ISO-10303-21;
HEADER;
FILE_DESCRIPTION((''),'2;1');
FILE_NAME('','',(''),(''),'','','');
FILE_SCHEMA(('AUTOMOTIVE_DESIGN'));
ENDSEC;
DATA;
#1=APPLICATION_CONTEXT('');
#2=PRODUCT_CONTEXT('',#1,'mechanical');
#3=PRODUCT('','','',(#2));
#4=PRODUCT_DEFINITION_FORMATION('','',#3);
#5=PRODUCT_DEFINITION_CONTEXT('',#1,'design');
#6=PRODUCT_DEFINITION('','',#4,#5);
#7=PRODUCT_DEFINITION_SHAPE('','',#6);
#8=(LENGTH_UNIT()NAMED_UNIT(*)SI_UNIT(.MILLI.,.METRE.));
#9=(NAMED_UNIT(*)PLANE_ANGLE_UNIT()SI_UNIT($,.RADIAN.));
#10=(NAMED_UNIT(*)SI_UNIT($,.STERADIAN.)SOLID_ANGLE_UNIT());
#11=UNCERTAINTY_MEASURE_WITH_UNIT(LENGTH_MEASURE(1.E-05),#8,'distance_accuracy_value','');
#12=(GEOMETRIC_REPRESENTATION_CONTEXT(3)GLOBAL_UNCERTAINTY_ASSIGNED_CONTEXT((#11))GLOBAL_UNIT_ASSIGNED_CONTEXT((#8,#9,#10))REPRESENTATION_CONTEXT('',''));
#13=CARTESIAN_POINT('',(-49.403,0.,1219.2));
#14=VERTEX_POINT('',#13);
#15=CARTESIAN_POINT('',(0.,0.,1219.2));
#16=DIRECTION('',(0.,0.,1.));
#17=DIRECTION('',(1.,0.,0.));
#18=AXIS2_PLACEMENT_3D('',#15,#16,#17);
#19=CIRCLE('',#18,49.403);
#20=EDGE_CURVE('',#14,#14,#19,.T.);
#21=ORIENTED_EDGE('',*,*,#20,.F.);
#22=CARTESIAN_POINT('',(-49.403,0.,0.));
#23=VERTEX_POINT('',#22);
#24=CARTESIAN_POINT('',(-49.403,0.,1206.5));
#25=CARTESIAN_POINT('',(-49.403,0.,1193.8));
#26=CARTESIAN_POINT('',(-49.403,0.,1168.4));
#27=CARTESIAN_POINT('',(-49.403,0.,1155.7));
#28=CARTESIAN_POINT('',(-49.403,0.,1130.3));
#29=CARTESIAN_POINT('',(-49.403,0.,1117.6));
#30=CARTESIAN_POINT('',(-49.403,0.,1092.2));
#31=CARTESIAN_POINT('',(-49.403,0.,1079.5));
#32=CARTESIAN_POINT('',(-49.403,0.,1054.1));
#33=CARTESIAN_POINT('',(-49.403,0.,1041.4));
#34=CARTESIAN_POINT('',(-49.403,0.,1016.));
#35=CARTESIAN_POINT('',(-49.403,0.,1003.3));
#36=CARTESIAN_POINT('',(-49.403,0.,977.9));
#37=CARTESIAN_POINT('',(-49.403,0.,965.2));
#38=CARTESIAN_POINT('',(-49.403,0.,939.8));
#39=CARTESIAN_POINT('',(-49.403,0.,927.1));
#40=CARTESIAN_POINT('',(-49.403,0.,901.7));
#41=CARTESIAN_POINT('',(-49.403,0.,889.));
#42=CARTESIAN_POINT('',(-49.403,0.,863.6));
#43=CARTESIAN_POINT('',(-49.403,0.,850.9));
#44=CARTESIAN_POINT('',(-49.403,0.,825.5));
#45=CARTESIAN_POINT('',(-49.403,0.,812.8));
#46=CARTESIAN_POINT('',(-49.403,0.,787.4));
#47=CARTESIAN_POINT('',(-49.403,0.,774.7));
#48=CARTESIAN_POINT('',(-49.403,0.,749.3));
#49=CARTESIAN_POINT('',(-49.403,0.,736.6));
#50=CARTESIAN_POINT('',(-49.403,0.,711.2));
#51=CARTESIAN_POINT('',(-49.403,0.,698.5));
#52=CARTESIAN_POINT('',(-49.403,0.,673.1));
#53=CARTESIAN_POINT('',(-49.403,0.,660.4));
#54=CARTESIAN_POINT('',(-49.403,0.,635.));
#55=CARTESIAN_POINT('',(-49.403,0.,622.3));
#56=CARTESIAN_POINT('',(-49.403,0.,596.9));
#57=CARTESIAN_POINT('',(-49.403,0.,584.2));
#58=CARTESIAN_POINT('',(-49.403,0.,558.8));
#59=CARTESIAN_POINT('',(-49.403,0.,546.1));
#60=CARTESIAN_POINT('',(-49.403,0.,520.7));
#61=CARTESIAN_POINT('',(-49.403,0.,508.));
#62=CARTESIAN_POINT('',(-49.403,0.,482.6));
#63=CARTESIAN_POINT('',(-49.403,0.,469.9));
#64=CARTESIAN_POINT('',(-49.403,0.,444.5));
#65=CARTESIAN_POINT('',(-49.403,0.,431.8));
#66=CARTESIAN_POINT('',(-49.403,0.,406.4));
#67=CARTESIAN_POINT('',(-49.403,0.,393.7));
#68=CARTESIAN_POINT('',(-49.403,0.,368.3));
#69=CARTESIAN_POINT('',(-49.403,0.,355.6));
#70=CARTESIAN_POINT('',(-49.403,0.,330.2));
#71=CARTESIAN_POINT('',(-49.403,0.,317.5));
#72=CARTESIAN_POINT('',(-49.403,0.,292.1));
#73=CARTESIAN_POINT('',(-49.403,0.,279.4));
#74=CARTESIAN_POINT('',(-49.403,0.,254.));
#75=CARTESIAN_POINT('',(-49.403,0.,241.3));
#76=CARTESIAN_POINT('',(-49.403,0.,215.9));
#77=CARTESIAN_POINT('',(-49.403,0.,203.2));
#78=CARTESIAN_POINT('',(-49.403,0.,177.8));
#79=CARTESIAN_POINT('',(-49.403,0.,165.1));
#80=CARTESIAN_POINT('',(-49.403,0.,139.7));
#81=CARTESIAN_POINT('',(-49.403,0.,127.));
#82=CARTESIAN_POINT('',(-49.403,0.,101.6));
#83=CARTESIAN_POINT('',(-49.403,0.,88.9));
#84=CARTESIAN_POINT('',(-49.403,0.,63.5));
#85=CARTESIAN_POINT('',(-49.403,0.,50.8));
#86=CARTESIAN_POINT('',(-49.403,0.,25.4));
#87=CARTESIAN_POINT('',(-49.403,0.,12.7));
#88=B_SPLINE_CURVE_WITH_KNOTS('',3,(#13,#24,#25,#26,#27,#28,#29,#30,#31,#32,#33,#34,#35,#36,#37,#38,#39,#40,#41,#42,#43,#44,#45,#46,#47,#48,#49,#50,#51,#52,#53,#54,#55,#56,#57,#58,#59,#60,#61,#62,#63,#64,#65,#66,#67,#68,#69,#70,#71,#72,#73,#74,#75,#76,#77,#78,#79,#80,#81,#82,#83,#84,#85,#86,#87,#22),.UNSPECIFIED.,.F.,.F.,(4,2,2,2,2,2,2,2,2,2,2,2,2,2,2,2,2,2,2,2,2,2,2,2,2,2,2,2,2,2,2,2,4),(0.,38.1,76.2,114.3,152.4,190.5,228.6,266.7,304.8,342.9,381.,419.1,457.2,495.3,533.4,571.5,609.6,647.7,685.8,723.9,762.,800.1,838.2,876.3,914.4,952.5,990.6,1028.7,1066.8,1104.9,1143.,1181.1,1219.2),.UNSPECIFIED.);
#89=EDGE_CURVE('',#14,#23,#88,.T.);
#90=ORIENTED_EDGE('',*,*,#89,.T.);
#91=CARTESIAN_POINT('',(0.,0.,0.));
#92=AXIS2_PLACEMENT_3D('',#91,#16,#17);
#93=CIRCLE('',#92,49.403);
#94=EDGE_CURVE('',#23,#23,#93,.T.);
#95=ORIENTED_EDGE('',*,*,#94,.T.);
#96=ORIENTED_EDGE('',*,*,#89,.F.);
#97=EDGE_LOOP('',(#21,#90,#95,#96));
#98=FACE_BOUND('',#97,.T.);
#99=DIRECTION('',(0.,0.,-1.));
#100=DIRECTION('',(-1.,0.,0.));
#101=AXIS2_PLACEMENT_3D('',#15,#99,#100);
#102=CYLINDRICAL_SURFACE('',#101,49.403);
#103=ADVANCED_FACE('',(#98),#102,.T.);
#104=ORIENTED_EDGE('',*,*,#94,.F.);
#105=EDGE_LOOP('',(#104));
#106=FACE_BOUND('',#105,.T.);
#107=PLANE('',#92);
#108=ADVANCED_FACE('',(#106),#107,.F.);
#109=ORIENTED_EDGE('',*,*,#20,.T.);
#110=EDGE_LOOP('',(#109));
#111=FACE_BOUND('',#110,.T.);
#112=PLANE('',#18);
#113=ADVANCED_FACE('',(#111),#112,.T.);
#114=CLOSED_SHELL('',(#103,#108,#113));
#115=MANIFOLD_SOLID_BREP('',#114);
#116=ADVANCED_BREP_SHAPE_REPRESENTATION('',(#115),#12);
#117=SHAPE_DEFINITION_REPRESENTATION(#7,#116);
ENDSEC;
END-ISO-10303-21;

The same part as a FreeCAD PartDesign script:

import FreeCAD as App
import Part
import Sketcher
from FreeCAD import Vector
Q = App.Units.Quantity

doc = App.newDocument("Part")
body = doc.addObject("PartDesign::Body", "Body")

sketch1 = body.newObject("Sketcher::SketchObject", "Sketch")
sketch1.AttachmentSupport = (doc.getObject("XY_Plane"), [""])
sketch1.MapMode = "FlatFace"
sketch1.addGeometry(Part.Circle(Vector(0, 0, 0), Vector(0, 0, 1), 49), False)
sketch1.addConstraint(Sketcher.Constraint("Coincident", 0, 3, -1, 1))
sketch1.addConstraint(Sketcher.Constraint("Diameter", 0, Q("3.89 in")))
pad1 = body.newObject("PartDesign::Pad", "Pad")
pad1.Profile = sketch1
pad1.Length = Q("48 in")

doc.recompute()
